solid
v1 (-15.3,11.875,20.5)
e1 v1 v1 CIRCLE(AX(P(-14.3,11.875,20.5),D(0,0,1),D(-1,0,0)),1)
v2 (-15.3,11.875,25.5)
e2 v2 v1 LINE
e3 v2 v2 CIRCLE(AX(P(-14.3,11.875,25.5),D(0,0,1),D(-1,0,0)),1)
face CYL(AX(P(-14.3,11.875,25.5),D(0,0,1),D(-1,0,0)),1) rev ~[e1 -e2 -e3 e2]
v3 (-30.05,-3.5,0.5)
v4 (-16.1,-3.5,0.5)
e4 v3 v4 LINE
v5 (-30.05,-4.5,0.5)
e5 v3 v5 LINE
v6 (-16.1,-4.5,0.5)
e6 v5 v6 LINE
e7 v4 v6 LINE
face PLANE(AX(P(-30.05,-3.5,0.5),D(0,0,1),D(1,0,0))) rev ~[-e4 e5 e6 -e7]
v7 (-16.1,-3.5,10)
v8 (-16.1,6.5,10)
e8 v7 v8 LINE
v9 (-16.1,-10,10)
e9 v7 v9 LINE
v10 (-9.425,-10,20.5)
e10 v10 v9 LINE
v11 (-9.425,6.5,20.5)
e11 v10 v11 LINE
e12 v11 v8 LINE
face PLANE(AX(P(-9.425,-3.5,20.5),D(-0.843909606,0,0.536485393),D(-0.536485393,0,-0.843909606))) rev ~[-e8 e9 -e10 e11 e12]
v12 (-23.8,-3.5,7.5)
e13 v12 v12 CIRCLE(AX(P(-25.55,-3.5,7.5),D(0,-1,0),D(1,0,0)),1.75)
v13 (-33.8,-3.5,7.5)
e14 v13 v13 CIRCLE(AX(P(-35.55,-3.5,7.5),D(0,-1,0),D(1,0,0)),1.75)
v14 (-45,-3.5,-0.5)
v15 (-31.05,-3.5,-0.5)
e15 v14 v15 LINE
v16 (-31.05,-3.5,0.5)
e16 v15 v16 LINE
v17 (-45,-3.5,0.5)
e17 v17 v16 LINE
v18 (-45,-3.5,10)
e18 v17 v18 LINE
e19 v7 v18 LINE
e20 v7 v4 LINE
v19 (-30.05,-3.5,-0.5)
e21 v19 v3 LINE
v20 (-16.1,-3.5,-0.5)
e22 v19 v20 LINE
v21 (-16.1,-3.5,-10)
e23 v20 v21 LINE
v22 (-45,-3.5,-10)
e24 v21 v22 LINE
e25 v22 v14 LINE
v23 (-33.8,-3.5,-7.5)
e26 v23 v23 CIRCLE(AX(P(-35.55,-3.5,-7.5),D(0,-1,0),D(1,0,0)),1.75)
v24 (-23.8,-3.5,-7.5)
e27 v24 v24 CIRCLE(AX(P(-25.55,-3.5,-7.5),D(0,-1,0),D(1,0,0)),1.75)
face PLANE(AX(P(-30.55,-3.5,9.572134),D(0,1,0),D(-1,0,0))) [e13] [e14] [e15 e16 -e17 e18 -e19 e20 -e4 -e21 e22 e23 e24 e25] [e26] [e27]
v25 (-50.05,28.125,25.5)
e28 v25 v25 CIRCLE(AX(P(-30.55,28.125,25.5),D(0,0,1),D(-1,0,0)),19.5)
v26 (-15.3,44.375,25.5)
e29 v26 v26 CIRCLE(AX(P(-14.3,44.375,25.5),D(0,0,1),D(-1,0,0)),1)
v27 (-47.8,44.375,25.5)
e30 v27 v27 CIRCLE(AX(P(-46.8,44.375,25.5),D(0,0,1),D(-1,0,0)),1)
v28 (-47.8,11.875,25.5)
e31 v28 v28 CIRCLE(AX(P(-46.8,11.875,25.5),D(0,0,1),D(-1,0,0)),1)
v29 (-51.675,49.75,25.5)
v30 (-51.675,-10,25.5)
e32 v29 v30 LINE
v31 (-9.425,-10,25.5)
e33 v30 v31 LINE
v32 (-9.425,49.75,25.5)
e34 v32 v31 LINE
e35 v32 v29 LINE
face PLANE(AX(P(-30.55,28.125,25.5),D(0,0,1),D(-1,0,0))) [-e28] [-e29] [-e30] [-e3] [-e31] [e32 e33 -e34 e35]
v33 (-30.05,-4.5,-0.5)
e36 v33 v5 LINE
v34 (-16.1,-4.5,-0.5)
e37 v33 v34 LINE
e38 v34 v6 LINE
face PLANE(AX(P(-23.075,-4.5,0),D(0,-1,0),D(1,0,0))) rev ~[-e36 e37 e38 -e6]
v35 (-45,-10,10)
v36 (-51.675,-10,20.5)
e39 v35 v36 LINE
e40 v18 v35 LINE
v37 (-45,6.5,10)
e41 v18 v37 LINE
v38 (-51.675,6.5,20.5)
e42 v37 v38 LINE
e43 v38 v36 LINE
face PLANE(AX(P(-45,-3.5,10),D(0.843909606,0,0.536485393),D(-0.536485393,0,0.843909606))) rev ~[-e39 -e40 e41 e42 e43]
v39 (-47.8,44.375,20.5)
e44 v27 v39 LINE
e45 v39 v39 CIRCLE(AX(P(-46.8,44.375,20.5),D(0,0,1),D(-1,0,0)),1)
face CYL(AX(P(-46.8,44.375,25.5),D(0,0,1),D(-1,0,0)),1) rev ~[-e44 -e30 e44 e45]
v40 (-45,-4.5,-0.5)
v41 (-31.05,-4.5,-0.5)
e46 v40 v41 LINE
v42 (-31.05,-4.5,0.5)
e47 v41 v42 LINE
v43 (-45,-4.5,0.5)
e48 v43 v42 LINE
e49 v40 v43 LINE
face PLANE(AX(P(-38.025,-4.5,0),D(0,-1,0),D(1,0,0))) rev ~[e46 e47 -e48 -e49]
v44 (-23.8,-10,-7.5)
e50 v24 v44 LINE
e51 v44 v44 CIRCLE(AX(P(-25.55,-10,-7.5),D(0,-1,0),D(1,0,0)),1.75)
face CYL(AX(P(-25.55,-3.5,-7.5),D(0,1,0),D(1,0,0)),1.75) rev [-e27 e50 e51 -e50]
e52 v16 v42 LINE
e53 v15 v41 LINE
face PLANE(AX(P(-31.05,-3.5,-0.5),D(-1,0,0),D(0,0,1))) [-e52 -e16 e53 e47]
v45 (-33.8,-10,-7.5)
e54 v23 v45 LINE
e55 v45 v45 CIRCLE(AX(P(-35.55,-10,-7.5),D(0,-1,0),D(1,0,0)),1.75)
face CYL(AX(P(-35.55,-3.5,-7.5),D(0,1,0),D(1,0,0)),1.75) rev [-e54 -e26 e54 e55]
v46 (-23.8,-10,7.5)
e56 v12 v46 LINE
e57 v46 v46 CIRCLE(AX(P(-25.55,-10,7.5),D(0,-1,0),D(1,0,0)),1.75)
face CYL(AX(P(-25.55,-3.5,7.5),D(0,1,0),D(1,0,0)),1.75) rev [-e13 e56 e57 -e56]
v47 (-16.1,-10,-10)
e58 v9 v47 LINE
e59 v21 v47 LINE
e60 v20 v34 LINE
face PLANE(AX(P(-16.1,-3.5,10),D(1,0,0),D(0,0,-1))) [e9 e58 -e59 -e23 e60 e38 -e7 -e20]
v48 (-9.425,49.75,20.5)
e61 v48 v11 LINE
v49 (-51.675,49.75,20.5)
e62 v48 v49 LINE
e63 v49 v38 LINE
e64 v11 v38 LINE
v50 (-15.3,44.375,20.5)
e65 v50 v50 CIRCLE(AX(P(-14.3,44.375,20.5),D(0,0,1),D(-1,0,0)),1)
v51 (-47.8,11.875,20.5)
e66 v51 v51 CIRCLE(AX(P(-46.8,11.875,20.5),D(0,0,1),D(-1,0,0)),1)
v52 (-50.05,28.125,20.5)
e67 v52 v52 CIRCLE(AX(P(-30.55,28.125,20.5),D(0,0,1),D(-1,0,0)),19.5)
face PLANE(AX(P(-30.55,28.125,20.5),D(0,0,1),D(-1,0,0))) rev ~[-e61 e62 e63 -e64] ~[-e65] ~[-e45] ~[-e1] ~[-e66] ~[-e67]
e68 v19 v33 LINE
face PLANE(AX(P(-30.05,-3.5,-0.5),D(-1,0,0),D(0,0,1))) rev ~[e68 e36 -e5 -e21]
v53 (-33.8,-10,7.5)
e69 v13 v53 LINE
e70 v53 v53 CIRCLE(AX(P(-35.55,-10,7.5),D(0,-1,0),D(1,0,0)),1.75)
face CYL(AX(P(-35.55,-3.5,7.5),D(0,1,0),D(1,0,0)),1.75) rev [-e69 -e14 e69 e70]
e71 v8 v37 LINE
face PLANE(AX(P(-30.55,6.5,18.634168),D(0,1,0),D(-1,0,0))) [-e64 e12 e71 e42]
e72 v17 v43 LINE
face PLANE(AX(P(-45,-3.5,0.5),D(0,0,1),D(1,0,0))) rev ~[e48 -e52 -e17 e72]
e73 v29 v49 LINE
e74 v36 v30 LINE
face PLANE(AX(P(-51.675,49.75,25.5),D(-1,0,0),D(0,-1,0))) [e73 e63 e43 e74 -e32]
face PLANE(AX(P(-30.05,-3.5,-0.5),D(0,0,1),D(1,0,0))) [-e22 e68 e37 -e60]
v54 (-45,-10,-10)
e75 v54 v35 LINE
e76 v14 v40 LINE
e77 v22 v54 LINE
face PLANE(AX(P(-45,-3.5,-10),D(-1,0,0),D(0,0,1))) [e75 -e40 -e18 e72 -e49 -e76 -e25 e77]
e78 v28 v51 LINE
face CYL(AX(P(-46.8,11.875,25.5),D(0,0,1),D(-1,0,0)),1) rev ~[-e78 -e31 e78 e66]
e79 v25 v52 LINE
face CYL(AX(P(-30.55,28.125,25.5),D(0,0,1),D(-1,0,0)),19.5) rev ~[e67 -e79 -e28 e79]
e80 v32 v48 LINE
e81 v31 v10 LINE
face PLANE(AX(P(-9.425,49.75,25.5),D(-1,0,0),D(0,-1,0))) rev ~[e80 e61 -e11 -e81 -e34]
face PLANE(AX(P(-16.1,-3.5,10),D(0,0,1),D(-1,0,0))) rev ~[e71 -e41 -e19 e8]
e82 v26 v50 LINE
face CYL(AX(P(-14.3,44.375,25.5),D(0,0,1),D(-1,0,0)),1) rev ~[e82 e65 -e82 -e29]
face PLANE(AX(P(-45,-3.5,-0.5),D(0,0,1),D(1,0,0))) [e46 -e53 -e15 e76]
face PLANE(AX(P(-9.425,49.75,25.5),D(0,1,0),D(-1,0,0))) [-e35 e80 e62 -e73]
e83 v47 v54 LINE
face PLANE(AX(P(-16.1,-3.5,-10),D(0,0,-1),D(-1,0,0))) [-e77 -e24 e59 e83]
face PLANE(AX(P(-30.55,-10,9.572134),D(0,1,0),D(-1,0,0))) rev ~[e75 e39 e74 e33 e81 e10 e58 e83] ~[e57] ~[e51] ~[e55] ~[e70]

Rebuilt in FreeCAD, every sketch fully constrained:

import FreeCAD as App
import Part
import Sketcher

V = App.Vector
Q = App.Units.Quantity

doc = App.newDocument("Part")
body = doc.addObject("PartDesign::Body", "Body")

# Sketch on XZ plane
sketch1 = body.newObject("Sketcher::SketchObject", "Sketch")
sketch1.AttachmentSupport = (doc.getObject("XZ_Plane"), [""])
sketch1.MapMode = "FlatFace"
sketch1.addGeometry([
    Part.LineSegment(V(14.4, -10, 0), V(14.4, 10, 0)),  # 0
    Part.LineSegment(V(14.4, 10, 0), V(21.1, 20.5, 0)),  # 1
    Part.LineSegment(V(21.1, 20.5, 0), V(21.1, 25.5, 0)),  # 2
    Part.LineSegment(V(21.1, 25.5, 0), V(-21.1, 25.5, 0)),  # 3
    Part.LineSegment(V(-21.1, 25.5, 0), V(-21.1, 20.5, 0)),  # 4
    Part.LineSegment(V(-21.1, 20.5, 0), V(-14.4, 10, 0)),  # 5
    Part.LineSegment(V(-14.4, 10, 0), V(-14.4, -10, 0)),  # 6
    Part.LineSegment(V(-14.4, -10, 0), V(14.4, -10, 0)),  # 7
    Part.Circle(V(5, -7.5, 0), V(0, 0, 1), 1.8),  # 8
    Part.Circle(V(-5, -7.5, 0), V(0, 0, 1), 1.8),  # 9
    Part.Circle(V(5, 7.5, 0), V(0, 0, 1), 1.8),  # 10
    Part.Circle(V(-5, 7.5, 0), V(0, 0, 1), 1.8),  # 11
], False)
sketch1.addConstraint([
    Sketcher.Constraint("Coincident", 0, 2, 1, 1),
    Sketcher.Constraint("Coincident", 1, 2, 2, 1),
    Sketcher.Constraint("Coincident", 2, 2, 3, 1),
    Sketcher.Constraint("Coincident", 3, 2, 4, 1),
    Sketcher.Constraint("Coincident", 4, 2, 5, 1),
    Sketcher.Constraint("Coincident", 5, 2, 6, 1),
    Sketcher.Constraint("Coincident", 6, 2, 7, 1),
    Sketcher.Constraint("Coincident", 7, 2, 0, 1),
    Sketcher.Constraint("Vertical", 0),
    Sketcher.Constraint("Vertical", 2),
    Sketcher.Constraint("Horizontal", 3),
    Sketcher.Constraint("Vertical", 4),
    Sketcher.Constraint("Vertical", 6),
    Sketcher.Constraint("Horizontal", 7),
    Sketcher.Constraint("Equal", 8, 9),
    Sketcher.Constraint("Equal", 9, 10),
    Sketcher.Constraint("Equal", 10, 11),
    Sketcher.Constraint("Symmetric", 9, 3, 10, 3, -1, 1),
    Sketcher.Constraint("Symmetric", 8, 3, 11, 3, -1, 1),
    Sketcher.Constraint("Symmetric", 0, 2, 6, 2, -1, 1),
    Sketcher.Constraint("Symmetric", 8, 3, 9, 3, -2),
    Sketcher.Constraint("Symmetric", 1, 2, 4, 2, -2),
    Sketcher.Constraint("Horizontal", 0, 2, 5, 2),
    Sketcher.Constraint("Diameter", 8, Q("3.5 mm")),
    Sketcher.Constraint("DistanceY", 0, 1, 0, 2, Q("20 mm")),
    Sketcher.Constraint("DistanceY", 2, 1, 2, 2, Q("5 mm")),
    Sketcher.Constraint("DistanceX", 7, 1, 7, 2, Q("28.9 mm")),
    Sketcher.Constraint("DistanceX", -1, 1, 8, 3, Q("5 mm")),
    Sketcher.Constraint("DistanceY", 8, 3, 10, 3, Q("15 mm")),
    Sketcher.Constraint("DistanceY", 10, 3, 1, 2, Q("13 mm")),
    Sketcher.Constraint("DistanceX", 3, 2, 3, 1, Q("42.25 mm")),
])
pad1 = body.newObject("PartDesign::Pad", "Pad")
pad1.Profile = sketch1
pad1.Length = 6.5

# Sketch on XZ plane
sketch2 = body.newObject("Sketcher::SketchObject", "Sketch001")
sketch2.AttachmentSupport = (doc.getObject("XZ_Plane"), [""])
sketch2.MapMode = "FlatFace"
sketch2.addGeometry([
    Part.LineSegment(V(21, 26, 0), V(-21, 26, 0)),  # 0
    Part.LineSegment(V(-21, 26, 0), V(-21, 20, 0)),  # 1
    Part.LineSegment(V(-21, 20, 0), V(-14, 10, 0)),  # 2
    Part.LineSegment(V(-14, 10, 0), V(14, 10, 0)),  # 3
    Part.LineSegment(V(14, 10, 0), V(21, 20, 0)),  # 4
    Part.LineSegment(V(21, 20, 0), V(21, 26, 0)),  # 5
], False)
sketch2.addConstraint([
    Sketcher.Constraint("Coincident", 0, 2, 1, 1),
    Sketcher.Constraint("Coincident", 1, 2, 2, 1),
    Sketcher.Constraint("Coincident", 2, 2, 3, 1),
    Sketcher.Constraint("Coincident", 3, 2, 4, 1),
    Sketcher.Constraint("Coincident", 4, 2, 5, 1),
    Sketcher.Constraint("Coincident", 5, 2, 0, 1),
    Sketcher.Constraint("Horizontal", 0),
    Sketcher.Constraint("Vertical", 1),
    Sketcher.Constraint("Horizontal", 3),
    Sketcher.Constraint("Vertical", 5),
    Sketcher.Constraint("Symmetric", 1, 2, 4, 2, -2),
    Sketcher.Constraint("Equal", 2, 4),
    Sketcher.Constraint("DistanceY", 1, 2, 1, 1, Q("5 mm")),
    Sketcher.Constraint("DistanceX", 3, 1, 3, 2, Q("28.9 mm")),
    Sketcher.Constraint("DistanceY", -1, 1, 2, 2, Q("10 mm")),
    Sketcher.Constraint("DistanceX", 0, 2, 0, 1, Q("42.25 mm")),
    Sketcher.Constraint("DistanceY", -1, 1, 0, 2, Q("25.5 mm")),
])
pad2 = body.newObject("PartDesign::Pad", "Pad001")
pad2.Profile = sketch2
pad2.Length = 10
pad2.Reversed = True

# Sketch on YZ plane
sketch3 = body.newObject("Sketcher::SketchObject", "Sketch002")
sketch3.AttachmentSupport = (doc.getObject("YZ_Plane"), [""])
sketch3.MapMode = "FlatFace"
sketch3.addGeometry(Part.Circle(V(5, -14.5, 0), V(0, 0, 1), 3), False)
sketch3.addConstraint([
    Sketcher.Constraint("Diameter", 0, Q("6 mm")),
    Sketcher.Constraint("DistanceX", -1, 1, 0, 3, Q("5 mm")),
    Sketcher.Constraint("DistanceY", 0, 3, -1, 1, Q("14.5 mm")),
])
pocket1 = body.newObject("PartDesign::Pocket", "Pocket")
pocket1.Profile = sketch3
pocket1.Length = 28.9
pocket1.Midplane = True

# Sketch on XY plane
sketch4 = body.newObject("Sketcher::SketchObject", "Sketch003")
sketch4.AttachmentSupport = (doc.getObject("XY_Plane"), [""])
sketch4.MapMode = "FlatFace"
sketch4.AttachmentOffset = App.Placement(V(0, 0, 25.5), App.Rotation())
sketch4.addGeometry([
    Part.LineSegment(V(21.1, 10, 0), V(21.1, 53.2, 0)),  # 0
    Part.LineSegment(V(21.1, 53.2, 0), V(-21.1, 53.2, 0)),  # 1
    Part.LineSegment(V(-21.1, 53.2, 0), V(-21.1, 10, 0)),  # 2
    Part.LineSegment(V(-21.1, 10, 0), V(21.1, 10, 0)),  # 3
    Part.Circle(V(16.2, 47.9, 0), V(0, 0, 1), 1),  # 4
    Part.Circle(V(-16.2, 47.9, 0), V(0, 0, 1), 1),  # 5
    Part.Circle(V(16.2, 15.4, 0), V(0, 0, 1), 1),  # 6
    Part.Circle(V(0, 31.6, 0), V(0, 0, 1), 19.5),  # 7
    Part.Circle(V(-16.2, 15.4, 0), V(0, 0, 1), 1),  # 8
], False)
sketch4.addConstraint([
    Sketcher.Constraint("Coincident", 0, 2, 1, 1),
    Sketcher.Constraint("Coincident", 1, 2, 2, 1),
    Sketcher.Constraint("Coincident", 2, 2, 3, 1),
    Sketcher.Constraint("Coincident", 3, 2, 0, 1),
    Sketcher.Constraint("Vertical", 0),
    Sketcher.Constraint("Horizontal", 1),
    Sketcher.Constraint("Vertical", 2),
    Sketcher.Constraint("Horizontal", 3),
    Sketcher.Constraint("Equal", 4, 5),
    Sketcher.Constraint("Equal", 5, 6),
    Sketcher.Constraint("Equal", 6, 8),
    Sketcher.Constraint("Symmetric", 4, 3, 5, 3, -2),
    Sketcher.Constraint("Symmetric", 6, 3, 8, 3, -2),
    Sketcher.Constraint("PointOnObject", 7, 3, -2),
    Sketcher.Constraint("Vertical", 4, 3, 6, 3),
    Sketcher.Constraint("Diameter", 4, Q("2 mm")),
    Sketcher.Constraint("Diameter", 7, Q("39 mm")),
    Sketcher.Constraint("DistanceY", -1, 1, 2, 2, Q("10 mm")),
    Sketcher.Constraint("DistanceX", 1, 2, 1, 1, Q("42.25 mm")),
    Sketcher.Constraint("DistanceY", 0, 1, 0, 2, Q("43.25 mm")),
    Sketcher.Constraint("DistanceX", 5, 3, 4, 3, Q("32.5 mm")),
    Sketcher.Constraint("DistanceY", 6, 3, 4, 3, Q("32.5 mm")),
    Sketcher.Constraint("DistanceY", 7, 3, 4, 3, Q("16.25 mm")),
    Sketcher.Constraint("DistanceY", -1, 1, 4, 3, Q("47.875 mm")),
    Sketcher.Constraint("DistanceX", -1, 1, 0, 2, Q("21.125 mm")),
])
pad3 = body.newObject("PartDesign::Pad", "Pad002")
pad3.Profile = sketch4
pad3.Length = 5
pad3.Reversed = True

# Sketch on XZ plane
sketch5 = body.newObject("Sketcher::SketchObject", "Sketch004")
sketch5.AttachmentSupport = (doc.getObject("XZ_Plane"), [""])
sketch5.MapMode = "FlatFace"
sketch5.addGeometry([
    Part.LineSegment(V(-14.4, 0.5, 0), V(-14.4, -0.5, 0)),  # 0
    Part.LineSegment(V(-14.4, -0.5, 0), V(-0.5, -0.5, 0)),  # 1
    Part.LineSegment(V(-0.5, -0.5, 0), V(-0.5, 0.5, 0)),  # 2
    Part.LineSegment(V(-0.5, 0.5, 0), V(-14.4, 0.5, 0)),  # 3
    Part.LineSegment(V(0.5, 0.5, 0), V(0.5, -0.5, 0)),  # 4
    Part.LineSegment(V(0.5, -0.5, 0), V(14.4, -0.5, 0)),  # 5
    Part.LineSegment(V(14.4, -0.5, 0), V(14.4, 0.5, 0)),  # 6
    Part.LineSegment(V(14.4, 0.5, 0), V(0.5, 0.5, 0)),  # 7
], False)
sketch5.addConstraint([
    Sketcher.Constraint("Coincident", 0, 2, 1, 1),
    Sketcher.Constraint("Coincident", 1, 2, 2, 1),
    Sketcher.Constraint("Coincident", 2, 2, 3, 1),
    Sketcher.Constraint("Coincident", 3, 2, 0, 1),
    Sketcher.Constraint("Coincident", 4, 2, 5, 1),
    Sketcher.Constraint("Coincident", 5, 2, 6, 1),
    Sketcher.Constraint("Coincident", 6, 2, 7, 1),
    Sketcher.Constraint("Coincident", 7, 2, 4, 1),
    Sketcher.Constraint("Vertical", 0),
    Sketcher.Constraint("Horizontal", 1),
    Sketcher.Constraint("Vertical", 2),
    Sketcher.Constraint("Horizontal", 3),
    Sketcher.Constraint("Vertical", 4),
    Sketcher.Constraint("Horizontal", 5),
    Sketcher.Constraint("Vertical", 6),
    Sketcher.Constraint("Horizontal", 7),
    Sketcher.Constraint("Symmetric", 2, 2, 4, 2, -1, 1),
    Sketcher.Constraint("Symmetric", 0, 2, 6, 2, -1, 1),
    Sketcher.Constraint("Horizontal", 1, 2, 4, 2),
    Sketcher.Constraint("DistanceY", 0, 2, 0, 1, Q("1 mm")),
    Sketcher.Constraint("DistanceX", 1, 2, 4, 2, Q("1 mm")),
    Sketcher.Constraint("DistanceX", 1, 1, 1, 2, Q("13.95 mm")),
])
pocket2 = body.newObject("PartDesign::Pocket", "Pocket001")
pocket2.Profile = sketch5
pocket2.Length = 1
pocket2.Reversed = True
body2 = doc.addObject("PartDesign::Body", "Body001")
doc.recompute()

body.Placement = App.Placement(V(-30.55, -3.5, 0), App.Rotation(V(0, 0, 1), 0))
boolean = body2.newObject("PartDesign::Boolean", "Boolean")
boolean.Type = "Fuse"
boolean.addObjects([body])

doc.recompute()
